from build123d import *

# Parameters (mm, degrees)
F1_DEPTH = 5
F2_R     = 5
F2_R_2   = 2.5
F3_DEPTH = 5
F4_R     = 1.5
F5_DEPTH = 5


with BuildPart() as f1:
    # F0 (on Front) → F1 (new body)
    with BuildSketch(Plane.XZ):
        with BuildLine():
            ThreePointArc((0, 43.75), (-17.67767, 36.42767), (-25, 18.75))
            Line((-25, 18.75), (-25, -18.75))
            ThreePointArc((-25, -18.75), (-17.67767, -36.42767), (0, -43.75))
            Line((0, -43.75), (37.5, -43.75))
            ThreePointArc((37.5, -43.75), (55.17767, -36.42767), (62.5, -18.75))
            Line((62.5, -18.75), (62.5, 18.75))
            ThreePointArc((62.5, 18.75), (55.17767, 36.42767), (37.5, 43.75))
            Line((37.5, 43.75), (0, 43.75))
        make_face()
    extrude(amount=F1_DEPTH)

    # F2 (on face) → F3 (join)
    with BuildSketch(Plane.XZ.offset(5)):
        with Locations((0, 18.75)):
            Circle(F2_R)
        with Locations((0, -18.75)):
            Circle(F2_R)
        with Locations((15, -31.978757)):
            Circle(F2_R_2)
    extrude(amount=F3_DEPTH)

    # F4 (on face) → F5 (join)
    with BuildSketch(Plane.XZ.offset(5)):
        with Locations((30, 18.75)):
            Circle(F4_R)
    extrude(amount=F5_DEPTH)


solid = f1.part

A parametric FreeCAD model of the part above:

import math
import FreeCAD as App
import Part
import Sketcher
from FreeCAD import Vector
Q = App.Units.Quantity

doc = App.newDocument("Part")
body = doc.addObject("PartDesign::Body", "Body")

# Sketch on XZ plane
sketch1 = doc.addObject("Sketcher::SketchObject", "Sketch")
body.addObject(sketch1)
sketch1.AttachmentSupport = (doc.XZ_Plane, [""])
sketch1.MapMode = "FlatFace"
sketch1.addGeometry(Part.ArcOfCircle(Part.Circle(Vector(0, 19, 0), Vector(0, 0, 1), 25), math.radians(90), math.radians(180)), False)
sketch1.addGeometry(Part.LineSegment(Vector(-25, 19, 0), Vector(-25, -19, 0)), False)
sketch1.addGeometry(Part.ArcOfCircle(Part.Circle(Vector(0, -19, 0), Vector(0, 0, 1), 25), math.radians(180), math.radians(270)), False)
sketch1.addGeometry(Part.LineSegment(Vector(0, -44, 0), Vector(38, -44, 0)), False)
sketch1.addGeometry(Part.ArcOfCircle(Part.Circle(Vector(38, -19, 0), Vector(0, 0, 1), 25), math.radians(-90), math.radians(0)), False)
sketch1.addGeometry(Part.LineSegment(Vector(62, -19, 0), Vector(62, 19, 0)), False)
sketch1.addGeometry(Part.ArcOfCircle(Part.Circle(Vector(38, 19, 0), Vector(0, 0, 1), 25), math.radians(0), math.radians(90)), False)
sketch1.addGeometry(Part.LineSegment(Vector(38, 44, 0), Vector(0, 44, 0)), False)
sketch1.addConstraint(Sketcher.Constraint("Tangent", 0, 2, 1, 1))
sketch1.addConstraint(Sketcher.Constraint("Tangent", 1, 2, 2, 1))
sketch1.addConstraint(Sketcher.Constraint("Tangent", 2, 2, 3, 1))
sketch1.addConstraint(Sketcher.Constraint("Tangent", 3, 2, 4, 1))
sketch1.addConstraint(Sketcher.Constraint("Tangent", 4, 2, 5, 1))
sketch1.addConstraint(Sketcher.Constraint("Tangent", 5, 2, 6, 1))
sketch1.addConstraint(Sketcher.Constraint("Tangent", 6, 2, 7, 1))
sketch1.addConstraint(Sketcher.Constraint("Tangent", 7, 2, 0, 1))
sketch1.addConstraint(Sketcher.Constraint("Vertical", 1))
sketch1.addConstraint(Sketcher.Constraint("Horizontal", 3))
sketch1.addConstraint(Sketcher.Constraint("Vertical", 5))
sketch1.addConstraint(Sketcher.Constraint("Horizontal", 7))
sketch1.addConstraint(Sketcher.Constraint("Equal", 0, 2))
sketch1.addConstraint(Sketcher.Constraint("Equal", 2, 4))
sketch1.addConstraint(Sketcher.Constraint("Equal", 4, 6))
sketch1.addConstraint(Sketcher.Constraint("Symmetric", 0, 3, 2, 3, -1, 1))
sketch1.addConstraint(Sketcher.Constraint("Equal", 7, 1))
sketch1.addConstraint(Sketcher.Constraint("Radius", 0, Q("24.999998 mm")))
sketch1.addConstraint(Sketcher.Constraint("DistanceX", 3, 1, 3, 2, Q("37.5 mm")))
pad1 = doc.addObject("PartDesign::Pad", "Pad")
body.addObject(pad1)
pad1.Profile = sketch1
pad1.Length = 5

# Sketch on XZ plane
sketch2 = doc.addObject("Sketcher::SketchObject", "Sketch001")
body.addObject(sketch2)
sketch2.AttachmentSupport = (doc.XZ_Plane, [""])
sketch2.MapMode = "FlatFace"
sketch2.AttachmentOffset = App.Placement(Vector(0, 0, 5), App.Rotation())
sketch2.addGeometry(Part.Circle(Vector(0, 18.8, 0), Vector(0, 0, 1), 5), False)
sketch2.addGeometry(Part.Circle(Vector(0, -18.8, 0), Vector(0, 0, 1), 5), False)
sketch2.addGeometry(Part.Circle(Vector(15, -32, 0), Vector(0, 0, 1), 2.5), False)
sketch2.addConstraint(Sketcher.Constraint("Equal", 0, 1))
sketch2.addConstraint(Sketcher.Constraint("Symmetric", 0, 3, 1, 3, -1, 1))
sketch2.addConstraint(Sketcher.Constraint("PointOnObject", 0, 3, -2))
sketch2.addConstraint(Sketcher.Constraint("Diameter", 0, Q("10 mm")))
sketch2.addConstraint(Sketcher.Constraint("Diameter", 2, Q("5 mm")))
sketch2.addConstraint(Sketcher.Constraint("DistanceX", -1, 1, 2, 3, Q("15 mm")))
sketch2.addConstraint(Sketcher.Constraint("DistanceY", 1, 3, 0, 3, Q("37.5 mm")))
sketch2.addConstraint(Sketcher.Constraint("DistanceY", 2, 3, -1, 1, Q("31.978757 mm")))
pad2 = doc.addObject("PartDesign::Pad", "Pad001")
body.addObject(pad2)
pad2.Profile = sketch2
pad2.Length = 5

# Sketch on XZ plane
sketch3 = doc.addObject("Sketcher::SketchObject", "Sketch002")
body.addObject(sketch3)
sketch3.AttachmentSupport = (doc.XZ_Plane, [""])
sketch3.MapMode = "FlatFace"
sketch3.AttachmentOffset = App.Placement(Vector(0, 0, 5), App.Rotation())
sketch3.addGeometry(Part.Circle(Vector(30, 18.8, 0), Vector(0, 0, 1), 1.5), False)
sketch3.addConstraint(Sketcher.Constraint("Diameter", 0, Q("3 mm")))
sketch3.addConstraint(Sketcher.Constraint("DistanceX", -1, 1, 0, 3, Q("30 mm")))
sketch3.addConstraint(Sketcher.Constraint("DistanceY", -1, 1, 0, 3, Q("18.75 mm")))
pad3 = doc.addObject("PartDesign::Pad", "Pad002")
body.addObject(pad3)
pad3.Profile = sketch3
pad3.Length = 5

doc.recompute()
